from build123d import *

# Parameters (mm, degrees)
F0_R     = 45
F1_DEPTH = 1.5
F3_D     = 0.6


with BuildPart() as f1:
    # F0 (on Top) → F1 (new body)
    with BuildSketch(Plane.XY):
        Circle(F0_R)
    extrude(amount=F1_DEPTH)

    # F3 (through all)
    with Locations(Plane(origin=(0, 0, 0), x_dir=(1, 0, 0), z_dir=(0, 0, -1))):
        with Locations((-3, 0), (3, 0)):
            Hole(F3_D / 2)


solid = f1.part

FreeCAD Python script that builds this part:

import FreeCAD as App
import Part
import Sketcher

V = App.Vector

doc = App.newDocument("Part")
body = doc.addObject("PartDesign::Body", "Body")

sketch1 = doc.addObject("Sketcher::SketchObject", "Sketch")
body.addObject(sketch1)
sketch1.AttachmentSupport = (doc.XY_Plane, [""])
sketch1.MapMode = "FlatFace"
sketch1.addGeometry(Part.Circle(V(0, 0, 0), V(0, 0, 1), 45), False)
sketch1.addConstraint([
    Sketcher.Constraint("Coincident", 0, 3, -1, 1),
    Sketcher.Constraint("Diameter", 0, 90.0),
])
pad1 = doc.addObject("PartDesign::Pad", "Pad")
body.addObject(pad1)
pad1.Profile = sketch1
pad1.Length = 1.5

sketch2 = doc.addObject("Sketcher::SketchObject", "Sketch001")
body.addObject(sketch2)
sketch2.AttachmentSupport = (doc.XY_Plane, [""])
sketch2.MapMode = "FlatFace"
sketch2.addGeometry([
    Part.Circle(V(-3, 0, 0), V(0, 0, 1), 0.3),
    Part.Circle(V(3, 0, 0), V(0, 0, 1), 0.3),
], False)
sketch2.addConstraint([
    Sketcher.Constraint("Equal", 0, 1),
    Sketcher.Constraint("Symmetric", 0, 3, 1, 3, -1, 1),
    Sketcher.Constraint("PointOnObject", 0, 3, -1),
    Sketcher.Constraint("Diameter", 0, 0.6),
    Sketcher.Constraint("DistanceX", 0, 3, -1, 1, 3.0),
])
doc.recompute()
hole = doc.addObject("PartDesign::Hole", "Hole")
body.addObject(hole)
hole.Profile = sketch2
hole.ThreadType = "None"
hole.Diameter = 0.6
hole.DepthType = "ThroughAll"
hole.Reversed = True

doc.recompute()
